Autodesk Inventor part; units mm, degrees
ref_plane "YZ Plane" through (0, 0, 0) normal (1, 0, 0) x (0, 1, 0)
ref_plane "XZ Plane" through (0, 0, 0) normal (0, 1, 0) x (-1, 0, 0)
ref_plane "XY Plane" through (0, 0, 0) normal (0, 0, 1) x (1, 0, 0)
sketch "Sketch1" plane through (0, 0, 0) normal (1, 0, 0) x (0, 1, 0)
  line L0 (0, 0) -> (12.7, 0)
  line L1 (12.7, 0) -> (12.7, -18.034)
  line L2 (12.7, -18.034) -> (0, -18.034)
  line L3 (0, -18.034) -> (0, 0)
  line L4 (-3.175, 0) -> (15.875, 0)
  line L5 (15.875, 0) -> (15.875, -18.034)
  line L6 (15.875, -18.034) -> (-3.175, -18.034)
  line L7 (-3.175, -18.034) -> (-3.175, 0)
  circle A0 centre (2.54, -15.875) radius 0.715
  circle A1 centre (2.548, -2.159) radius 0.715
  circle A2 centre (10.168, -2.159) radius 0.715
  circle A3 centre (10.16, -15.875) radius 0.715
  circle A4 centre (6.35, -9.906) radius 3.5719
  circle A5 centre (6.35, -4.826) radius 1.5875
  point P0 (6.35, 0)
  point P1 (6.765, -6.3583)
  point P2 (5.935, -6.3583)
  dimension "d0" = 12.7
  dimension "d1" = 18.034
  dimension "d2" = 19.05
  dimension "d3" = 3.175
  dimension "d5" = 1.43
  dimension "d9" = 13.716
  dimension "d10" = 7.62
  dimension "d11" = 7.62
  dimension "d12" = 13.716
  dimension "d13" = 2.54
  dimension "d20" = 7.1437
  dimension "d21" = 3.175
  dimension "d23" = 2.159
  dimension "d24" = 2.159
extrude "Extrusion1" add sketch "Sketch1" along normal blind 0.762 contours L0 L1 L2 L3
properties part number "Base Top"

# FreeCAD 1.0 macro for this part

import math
import FreeCAD as App
import Part
import Sketcher
from FreeCAD import Vector
Q = App.Units.Quantity

doc = App.newDocument("Part")
params = doc.addObject("Spreadsheet::Sheet", "Params")
for row, (alias, value) in enumerate([
    ("sketch1_width", "0.5 in"),
    ("sketch1_radius", "0.1406299 in"),
    ("sketch1_radius2", "0.0625 in"),
    ("sketch1_height", "0.71 in"),
    ("pad1_length", "0.03 in"),
], start=1):
    params.set(f"A{row}", alias)
    params.set(f"B{row}", "=" + value)
    params.setAlias(f"B{row}", alias)

body = doc.addObject("PartDesign::Body", "Body")

# Sketch on YZ plane
sketch1 = body.newObject("Sketcher::SketchObject", "Sketch")
sketch1.AttachmentSupport = (doc.getObject("YZ_Plane"), [""])
sketch1.MapMode = "FlatFace"
sketch1.addGeometry([
    Part.LineSegment(Vector(12.7, 0, 0), Vector(0, 0, 0)),  # 0
    Part.LineSegment(Vector(0, 0, 0), Vector(0, -18, 0)),  # 1
    Part.LineSegment(Vector(0, -18, 0), Vector(12.7, -18, 0)),  # 2
    Part.LineSegment(Vector(12.7, -18, 0), Vector(12.7, 0, 0)),  # 3
    Part.Circle(Vector(2.5, -15.9, 0), Vector(0, 0, 1), 0.7),  # 4
    Part.Circle(Vector(10.2, -15.9, 0), Vector(0, 0, 1), 0.7),  # 5
    Part.Circle(Vector(2.5, -2.2, 0), Vector(0, 0, 1), 0.7),  # 6
    Part.ArcOfCircle(Part.Circle(Vector(6.3, -9.9, 0), Vector(0, 0, 1), 3.6), math.radians(97), math.radians(443)),  # 7
    Part.ArcOfCircle(Part.Circle(Vector(6.3, -4.8, 0), Vector(0, 0, 1), 1.6), math.radians(-75), math.radians(255)),  # 8
    Part.Circle(Vector(10.2, -2.2, 0), Vector(0, 0, 1), 0.7),  # 9
], False)
sketch1.addConstraint([
    Sketcher.Constraint("Coincident", 0, 2, 1, 1),
    Sketcher.Constraint("Coincident", 1, 2, 2, 1),
    Sketcher.Constraint("Coincident", 2, 2, 3, 1),
    Sketcher.Constraint("Coincident", 3, 2, 0, 1),
    Sketcher.Constraint("Coincident", 7, 1, 8, 2),
    Sketcher.Constraint("Coincident", 8, 1, 7, 2),
    Sketcher.Constraint("Horizontal", 0),
    Sketcher.Constraint("Vertical", 1),
    Sketcher.Constraint("Horizontal", 2),
    Sketcher.Constraint("Vertical", 3),
    Sketcher.Constraint("Coincident", 0, 2, -1, 1),
    Sketcher.Constraint("Equal", 4, 5),
    Sketcher.Constraint("Equal", 5, 6),
    Sketcher.Constraint("Equal", 6, 9),
    Sketcher.Constraint("Horizontal", 4, 3, 5, 3),
    Sketcher.Constraint("Horizontal", 6, 3, 9, 3),
    Sketcher.Constraint("Horizontal", 7, 1, 8, 1),
    Sketcher.Constraint("DistanceX", 0, 2, 0, 1, Q("0.5 in")),
    Sketcher.Constraint("Radius", 7, Q("0.1406299 in")),
    Sketcher.Constraint("Radius", 8, Q("0.0625 in")),
    Sketcher.Constraint("Diameter", 4, Q("0.0563 in")),
    Sketcher.Constraint("DistanceY", 1, 2, 1, 1, Q("0.71 in")),
    Sketcher.Constraint("DistanceX", -1, 1, 4, 3, Q("0.1 in")),
    Sketcher.Constraint("DistanceX", 4, 3, 5, 3, Q("0.3 in")),
    Sketcher.Constraint("DistanceX", 6, 3, 9, 3, Q("0.3 in")),
    Sketcher.Constraint("DistanceY", 4, 3, 6, 3, Q("0.54 in")),
    Sketcher.Constraint("DistanceY", 6, 3, -1, 1, Q("0.085 in")),
    Sketcher.Constraint("DistanceY", 7, 3, 8, 3, Q("0.2 in")),
    Sketcher.Constraint("DistanceX", -1, 1, 7, 3, Q("0.25 in")),
    Sketcher.Constraint("DistanceY", 7, 3, -1, 1, Q("0.39 in")),
    Sketcher.Constraint("DistanceX", -1, 1, 6, 3, 2.548),
])
sketch1.setExpression("Constraints[17]", "Params.sketch1_width")
sketch1.setExpression("Constraints[18]", "Params.sketch1_radius")
sketch1.setExpression("Constraints[19]", "Params.sketch1_radius2")
sketch1.setExpression("Constraints[21]", "Params.sketch1_height")
pad1 = body.newObject("PartDesign::Pad", "Pad")
pad1.Profile = sketch1
pad1.setExpression("Length", "Params.pad1_length")

doc.recompute()
